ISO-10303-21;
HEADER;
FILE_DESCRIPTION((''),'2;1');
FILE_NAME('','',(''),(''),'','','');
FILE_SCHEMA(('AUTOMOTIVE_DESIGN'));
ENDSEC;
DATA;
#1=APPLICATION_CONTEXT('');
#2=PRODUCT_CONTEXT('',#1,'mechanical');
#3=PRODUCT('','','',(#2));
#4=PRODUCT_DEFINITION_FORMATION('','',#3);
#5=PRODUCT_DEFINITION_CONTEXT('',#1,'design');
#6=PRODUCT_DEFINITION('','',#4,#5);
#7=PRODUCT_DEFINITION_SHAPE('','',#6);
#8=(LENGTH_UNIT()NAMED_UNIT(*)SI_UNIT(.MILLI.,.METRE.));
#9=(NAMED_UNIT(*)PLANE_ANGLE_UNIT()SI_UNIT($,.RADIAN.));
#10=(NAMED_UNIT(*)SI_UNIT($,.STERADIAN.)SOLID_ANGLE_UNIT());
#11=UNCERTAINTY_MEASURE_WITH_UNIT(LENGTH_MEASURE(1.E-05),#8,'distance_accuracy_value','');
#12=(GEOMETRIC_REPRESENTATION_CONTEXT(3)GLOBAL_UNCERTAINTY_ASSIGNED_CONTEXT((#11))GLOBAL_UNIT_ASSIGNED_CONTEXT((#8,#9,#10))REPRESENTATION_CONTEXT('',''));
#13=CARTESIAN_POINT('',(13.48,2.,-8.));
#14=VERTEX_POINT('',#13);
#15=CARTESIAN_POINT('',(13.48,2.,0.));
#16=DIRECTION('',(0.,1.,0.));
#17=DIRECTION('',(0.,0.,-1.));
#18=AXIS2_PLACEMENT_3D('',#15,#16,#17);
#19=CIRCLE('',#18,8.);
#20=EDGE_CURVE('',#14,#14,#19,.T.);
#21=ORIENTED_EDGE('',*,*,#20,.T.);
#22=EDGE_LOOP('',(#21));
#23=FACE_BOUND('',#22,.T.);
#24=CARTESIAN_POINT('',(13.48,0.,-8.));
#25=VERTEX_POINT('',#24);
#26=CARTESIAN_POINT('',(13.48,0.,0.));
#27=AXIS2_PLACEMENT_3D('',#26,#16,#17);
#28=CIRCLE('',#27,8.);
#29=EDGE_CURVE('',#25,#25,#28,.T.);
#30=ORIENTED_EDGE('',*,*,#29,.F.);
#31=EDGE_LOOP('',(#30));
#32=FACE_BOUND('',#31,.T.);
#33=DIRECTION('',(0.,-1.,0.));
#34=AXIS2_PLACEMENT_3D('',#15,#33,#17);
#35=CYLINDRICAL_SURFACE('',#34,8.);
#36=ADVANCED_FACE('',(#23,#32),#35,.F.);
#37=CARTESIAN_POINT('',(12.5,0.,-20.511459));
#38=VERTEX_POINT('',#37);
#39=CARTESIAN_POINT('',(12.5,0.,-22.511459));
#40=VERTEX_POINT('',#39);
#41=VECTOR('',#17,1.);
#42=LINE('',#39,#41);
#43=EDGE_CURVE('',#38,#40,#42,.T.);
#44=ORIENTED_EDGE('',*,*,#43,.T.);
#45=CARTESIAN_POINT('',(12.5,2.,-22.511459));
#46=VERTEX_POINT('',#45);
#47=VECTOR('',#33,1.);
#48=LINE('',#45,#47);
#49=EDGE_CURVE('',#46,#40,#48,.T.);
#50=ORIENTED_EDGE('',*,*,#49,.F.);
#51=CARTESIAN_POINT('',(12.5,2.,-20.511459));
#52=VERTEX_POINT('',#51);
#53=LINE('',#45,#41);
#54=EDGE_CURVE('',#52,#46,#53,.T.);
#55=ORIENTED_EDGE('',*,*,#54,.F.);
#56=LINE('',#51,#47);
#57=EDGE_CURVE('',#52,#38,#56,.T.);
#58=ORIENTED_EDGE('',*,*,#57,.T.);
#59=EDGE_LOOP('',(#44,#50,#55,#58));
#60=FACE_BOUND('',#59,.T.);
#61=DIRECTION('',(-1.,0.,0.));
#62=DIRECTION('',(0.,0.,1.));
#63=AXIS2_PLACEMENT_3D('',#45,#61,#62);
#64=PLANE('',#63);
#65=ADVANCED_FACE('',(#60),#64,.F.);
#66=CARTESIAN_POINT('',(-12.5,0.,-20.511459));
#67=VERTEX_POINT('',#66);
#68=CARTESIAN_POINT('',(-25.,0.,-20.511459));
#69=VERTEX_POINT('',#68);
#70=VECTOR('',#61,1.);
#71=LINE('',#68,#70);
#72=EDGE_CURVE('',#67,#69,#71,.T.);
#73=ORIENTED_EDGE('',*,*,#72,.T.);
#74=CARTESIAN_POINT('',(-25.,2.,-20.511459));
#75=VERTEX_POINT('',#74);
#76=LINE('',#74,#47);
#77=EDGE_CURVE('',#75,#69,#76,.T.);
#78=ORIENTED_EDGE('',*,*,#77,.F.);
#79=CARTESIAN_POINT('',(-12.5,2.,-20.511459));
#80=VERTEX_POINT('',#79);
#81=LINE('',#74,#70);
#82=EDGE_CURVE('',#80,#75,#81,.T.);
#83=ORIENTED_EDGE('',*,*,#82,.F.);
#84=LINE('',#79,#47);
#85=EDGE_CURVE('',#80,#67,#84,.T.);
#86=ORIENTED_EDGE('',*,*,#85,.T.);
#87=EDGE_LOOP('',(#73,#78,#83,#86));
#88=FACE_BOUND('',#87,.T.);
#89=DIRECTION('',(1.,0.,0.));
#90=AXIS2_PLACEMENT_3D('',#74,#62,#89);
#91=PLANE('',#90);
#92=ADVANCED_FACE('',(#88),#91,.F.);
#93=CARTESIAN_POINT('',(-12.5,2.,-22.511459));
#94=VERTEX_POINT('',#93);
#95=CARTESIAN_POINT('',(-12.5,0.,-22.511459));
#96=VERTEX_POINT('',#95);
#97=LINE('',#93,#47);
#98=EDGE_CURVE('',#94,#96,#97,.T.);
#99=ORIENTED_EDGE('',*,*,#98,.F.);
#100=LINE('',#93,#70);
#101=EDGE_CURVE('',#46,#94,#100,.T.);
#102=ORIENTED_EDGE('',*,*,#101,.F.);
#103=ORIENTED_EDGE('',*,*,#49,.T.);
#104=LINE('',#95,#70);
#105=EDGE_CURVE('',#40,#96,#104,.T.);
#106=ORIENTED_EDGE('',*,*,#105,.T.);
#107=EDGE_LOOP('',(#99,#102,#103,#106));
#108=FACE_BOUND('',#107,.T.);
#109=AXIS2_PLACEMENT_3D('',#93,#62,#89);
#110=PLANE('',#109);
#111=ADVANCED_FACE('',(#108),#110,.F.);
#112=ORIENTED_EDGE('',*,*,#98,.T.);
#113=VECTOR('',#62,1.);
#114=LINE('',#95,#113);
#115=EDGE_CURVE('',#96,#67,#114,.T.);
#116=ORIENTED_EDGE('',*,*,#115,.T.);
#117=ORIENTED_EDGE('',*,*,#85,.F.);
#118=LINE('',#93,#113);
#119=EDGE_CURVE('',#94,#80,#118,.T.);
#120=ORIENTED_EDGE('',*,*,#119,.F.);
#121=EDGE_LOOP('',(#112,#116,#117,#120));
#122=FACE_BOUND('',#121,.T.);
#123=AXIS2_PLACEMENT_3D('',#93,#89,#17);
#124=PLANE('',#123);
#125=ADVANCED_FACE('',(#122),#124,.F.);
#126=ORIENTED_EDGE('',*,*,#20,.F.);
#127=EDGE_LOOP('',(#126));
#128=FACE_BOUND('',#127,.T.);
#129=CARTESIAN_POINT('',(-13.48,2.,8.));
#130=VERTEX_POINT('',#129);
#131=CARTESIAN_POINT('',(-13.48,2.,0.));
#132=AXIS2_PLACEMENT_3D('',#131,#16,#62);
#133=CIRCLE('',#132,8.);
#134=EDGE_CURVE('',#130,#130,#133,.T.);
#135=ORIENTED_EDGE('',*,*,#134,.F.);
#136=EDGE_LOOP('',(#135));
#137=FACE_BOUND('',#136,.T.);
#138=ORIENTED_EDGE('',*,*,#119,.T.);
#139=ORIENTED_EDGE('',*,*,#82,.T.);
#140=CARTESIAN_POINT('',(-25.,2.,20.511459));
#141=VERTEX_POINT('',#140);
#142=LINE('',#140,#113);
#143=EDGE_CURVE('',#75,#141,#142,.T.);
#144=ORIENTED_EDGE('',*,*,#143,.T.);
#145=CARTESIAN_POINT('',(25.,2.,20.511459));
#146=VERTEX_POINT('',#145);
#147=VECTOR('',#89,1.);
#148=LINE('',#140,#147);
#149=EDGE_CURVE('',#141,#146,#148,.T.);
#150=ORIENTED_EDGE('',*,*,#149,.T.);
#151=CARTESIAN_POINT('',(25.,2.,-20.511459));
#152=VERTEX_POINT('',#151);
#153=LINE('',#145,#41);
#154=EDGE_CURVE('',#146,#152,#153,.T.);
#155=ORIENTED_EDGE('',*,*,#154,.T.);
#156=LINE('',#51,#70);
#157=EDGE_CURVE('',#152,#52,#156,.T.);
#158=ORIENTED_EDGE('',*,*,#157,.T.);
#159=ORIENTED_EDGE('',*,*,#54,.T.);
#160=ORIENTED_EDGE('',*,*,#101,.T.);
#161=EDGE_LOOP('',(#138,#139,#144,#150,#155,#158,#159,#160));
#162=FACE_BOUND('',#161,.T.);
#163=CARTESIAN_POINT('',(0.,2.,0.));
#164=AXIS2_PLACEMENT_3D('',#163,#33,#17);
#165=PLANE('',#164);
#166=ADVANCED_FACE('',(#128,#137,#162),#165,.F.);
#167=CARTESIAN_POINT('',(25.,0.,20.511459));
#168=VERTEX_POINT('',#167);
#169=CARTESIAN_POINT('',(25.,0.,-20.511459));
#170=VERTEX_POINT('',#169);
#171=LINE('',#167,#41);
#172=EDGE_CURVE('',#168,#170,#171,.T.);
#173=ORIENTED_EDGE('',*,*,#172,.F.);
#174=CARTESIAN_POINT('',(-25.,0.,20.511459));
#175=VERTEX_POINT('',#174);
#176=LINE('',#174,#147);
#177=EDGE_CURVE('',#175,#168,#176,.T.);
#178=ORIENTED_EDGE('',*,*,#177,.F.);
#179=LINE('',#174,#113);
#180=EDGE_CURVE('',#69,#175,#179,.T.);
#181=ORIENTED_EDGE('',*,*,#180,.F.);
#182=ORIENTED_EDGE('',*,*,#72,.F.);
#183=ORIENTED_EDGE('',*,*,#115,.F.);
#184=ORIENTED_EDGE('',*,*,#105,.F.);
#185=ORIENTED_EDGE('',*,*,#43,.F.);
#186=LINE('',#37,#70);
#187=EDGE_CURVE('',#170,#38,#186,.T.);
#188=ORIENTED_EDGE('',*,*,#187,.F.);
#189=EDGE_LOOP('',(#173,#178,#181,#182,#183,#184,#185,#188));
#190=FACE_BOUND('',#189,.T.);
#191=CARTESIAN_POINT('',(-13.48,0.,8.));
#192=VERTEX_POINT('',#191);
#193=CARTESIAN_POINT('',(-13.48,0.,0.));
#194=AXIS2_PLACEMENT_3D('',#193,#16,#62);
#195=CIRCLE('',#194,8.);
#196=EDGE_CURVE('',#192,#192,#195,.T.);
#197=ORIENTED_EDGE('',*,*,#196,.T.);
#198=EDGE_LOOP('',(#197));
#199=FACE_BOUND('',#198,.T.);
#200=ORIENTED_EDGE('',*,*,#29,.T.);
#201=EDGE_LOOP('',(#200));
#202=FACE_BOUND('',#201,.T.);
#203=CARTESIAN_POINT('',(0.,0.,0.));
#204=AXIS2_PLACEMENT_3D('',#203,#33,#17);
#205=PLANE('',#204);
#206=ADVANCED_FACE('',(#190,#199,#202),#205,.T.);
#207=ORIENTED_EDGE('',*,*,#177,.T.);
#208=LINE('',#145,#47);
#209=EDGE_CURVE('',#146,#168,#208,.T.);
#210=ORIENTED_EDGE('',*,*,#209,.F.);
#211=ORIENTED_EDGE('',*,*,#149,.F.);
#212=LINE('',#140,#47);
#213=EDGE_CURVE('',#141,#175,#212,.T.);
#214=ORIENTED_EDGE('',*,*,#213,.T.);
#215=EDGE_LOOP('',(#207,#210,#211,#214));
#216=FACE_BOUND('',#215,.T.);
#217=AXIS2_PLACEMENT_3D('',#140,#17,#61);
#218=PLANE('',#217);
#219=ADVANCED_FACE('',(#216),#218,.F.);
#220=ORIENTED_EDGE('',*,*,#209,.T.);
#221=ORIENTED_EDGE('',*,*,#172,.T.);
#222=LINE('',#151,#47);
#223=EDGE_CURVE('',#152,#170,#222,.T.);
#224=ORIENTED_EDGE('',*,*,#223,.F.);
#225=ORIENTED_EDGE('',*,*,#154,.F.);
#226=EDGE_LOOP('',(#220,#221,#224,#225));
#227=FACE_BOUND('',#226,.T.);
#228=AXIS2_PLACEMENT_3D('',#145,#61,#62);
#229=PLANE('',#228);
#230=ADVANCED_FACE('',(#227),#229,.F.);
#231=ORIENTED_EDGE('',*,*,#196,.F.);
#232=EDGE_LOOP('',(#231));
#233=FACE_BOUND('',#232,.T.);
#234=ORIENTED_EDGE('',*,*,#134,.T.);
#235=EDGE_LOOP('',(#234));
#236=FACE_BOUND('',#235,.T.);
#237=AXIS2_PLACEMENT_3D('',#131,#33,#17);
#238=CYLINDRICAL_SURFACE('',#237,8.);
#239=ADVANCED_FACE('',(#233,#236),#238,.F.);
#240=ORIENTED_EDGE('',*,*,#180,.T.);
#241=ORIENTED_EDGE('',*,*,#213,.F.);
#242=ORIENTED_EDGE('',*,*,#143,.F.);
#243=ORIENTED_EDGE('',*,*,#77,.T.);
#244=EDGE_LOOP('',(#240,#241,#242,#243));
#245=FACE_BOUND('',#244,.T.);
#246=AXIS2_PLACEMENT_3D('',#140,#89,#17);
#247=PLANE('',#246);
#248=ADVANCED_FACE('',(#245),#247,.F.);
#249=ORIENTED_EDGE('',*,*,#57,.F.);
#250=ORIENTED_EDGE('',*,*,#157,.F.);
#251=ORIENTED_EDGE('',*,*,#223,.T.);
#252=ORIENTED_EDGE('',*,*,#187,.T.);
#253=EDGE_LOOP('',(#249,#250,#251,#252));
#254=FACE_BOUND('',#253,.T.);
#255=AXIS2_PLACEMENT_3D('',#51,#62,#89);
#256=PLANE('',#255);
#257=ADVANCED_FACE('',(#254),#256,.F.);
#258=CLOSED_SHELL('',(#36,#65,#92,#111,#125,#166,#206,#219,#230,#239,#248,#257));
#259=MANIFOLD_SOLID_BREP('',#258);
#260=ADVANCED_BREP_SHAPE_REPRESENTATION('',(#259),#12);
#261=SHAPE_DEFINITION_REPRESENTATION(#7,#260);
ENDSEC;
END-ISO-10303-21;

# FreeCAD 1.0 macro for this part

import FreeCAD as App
import Part
import Sketcher

V = App.Vector

doc = App.newDocument("Part")
body = doc.addObject("PartDesign::Body", "Body")

sketch1 = doc.addObject("Sketcher::SketchObject", "Sketch")
body.addObject(sketch1)
sketch1.AttachmentSupport = (doc.XZ_Plane, [""])
sketch1.MapMode = "FlatFace"
sketch1.addGeometry([
    Part.LineSegment(V(25, -20.5, 0), V(12.5, -20.5, 0)),
    Part.LineSegment(V(12.5, -20.5, 0), V(12.5, -22.5, 0)),
    Part.LineSegment(V(12.5, -22.5, 0), V(-12.5, -22.5, 0)),
    Part.LineSegment(V(-12.5, -22.5, 0), V(-12.5, -20.5, 0)),
    Part.LineSegment(V(-12.5, -20.5, 0), V(-25, -20.5, 0)),
    Part.LineSegment(V(-25, -20.5, 0), V(-25, 20.5, 0)),
    Part.LineSegment(V(-25, 20.5, 0), V(25, 20.5, 0)),
    Part.LineSegment(V(25, 20.5, 0), V(25, -20.5, 0)),
    Part.Circle(V(13.5, 0, 0), V(0, 0, 1), 8),
    Part.Circle(V(-13.5, 0, 0), V(0, 0, 1), 8),
], False)
sketch1.addConstraint([
    Sketcher.Constraint("Coincident", 0, 2, 1, 1),
    Sketcher.Constraint("Coincident", 1, 2, 2, 1),
    Sketcher.Constraint("Coincident", 2, 2, 3, 1),
    Sketcher.Constraint("Coincident", 3, 2, 4, 1),
    Sketcher.Constraint("Coincident", 4, 2, 5, 1),
    Sketcher.Constraint("Coincident", 5, 2, 6, 1),
    Sketcher.Constraint("Coincident", 6, 2, 7, 1),
    Sketcher.Constraint("Coincident", 7, 2, 0, 1),
    Sketcher.Constraint("Horizontal", 0),
    Sketcher.Constraint("Vertical", 1),
    Sketcher.Constraint("Horizontal", 2),
    Sketcher.Constraint("Vertical", 3),
    Sketcher.Constraint("Horizontal", 4),
    Sketcher.Constraint("Vertical", 5),
    Sketcher.Constraint("Horizontal", 6),
    Sketcher.Constraint("Vertical", 7),
    Sketcher.Constraint("Equal", 8, 9),
    Sketcher.Constraint("Symmetric", 8, 3, 9, 3, -1, 1),
    Sketcher.Constraint("Symmetric", 4, 2, 6, 2, -1, 1),
    Sketcher.Constraint("Symmetric", 0, 2, 3, 2, -2),
    Sketcher.Constraint("PointOnObject", 8, 3, -1),
    Sketcher.Constraint("Diameter", 8, 16.0),
    Sketcher.Constraint("DistanceX", 2, 2, 2, 1, 25.0),
    Sketcher.Constraint("DistanceX", 6, 1, 6, 2, 50.0),
    Sketcher.Constraint("DistanceY", 1, 2, 1, 1, 2.0),
    Sketcher.Constraint("DistanceX", -1, 1, 8, 3, 13.48),
    Sketcher.Constraint("DistanceY", 5, 1, 5, 2, 41.022919),
])
pad1 = doc.addObject("PartDesign::Pad", "Pad")
body.addObject(pad1)
pad1.Profile = sketch1
pad1.Length = 2
pad1.Reversed = True

doc.recompute()
